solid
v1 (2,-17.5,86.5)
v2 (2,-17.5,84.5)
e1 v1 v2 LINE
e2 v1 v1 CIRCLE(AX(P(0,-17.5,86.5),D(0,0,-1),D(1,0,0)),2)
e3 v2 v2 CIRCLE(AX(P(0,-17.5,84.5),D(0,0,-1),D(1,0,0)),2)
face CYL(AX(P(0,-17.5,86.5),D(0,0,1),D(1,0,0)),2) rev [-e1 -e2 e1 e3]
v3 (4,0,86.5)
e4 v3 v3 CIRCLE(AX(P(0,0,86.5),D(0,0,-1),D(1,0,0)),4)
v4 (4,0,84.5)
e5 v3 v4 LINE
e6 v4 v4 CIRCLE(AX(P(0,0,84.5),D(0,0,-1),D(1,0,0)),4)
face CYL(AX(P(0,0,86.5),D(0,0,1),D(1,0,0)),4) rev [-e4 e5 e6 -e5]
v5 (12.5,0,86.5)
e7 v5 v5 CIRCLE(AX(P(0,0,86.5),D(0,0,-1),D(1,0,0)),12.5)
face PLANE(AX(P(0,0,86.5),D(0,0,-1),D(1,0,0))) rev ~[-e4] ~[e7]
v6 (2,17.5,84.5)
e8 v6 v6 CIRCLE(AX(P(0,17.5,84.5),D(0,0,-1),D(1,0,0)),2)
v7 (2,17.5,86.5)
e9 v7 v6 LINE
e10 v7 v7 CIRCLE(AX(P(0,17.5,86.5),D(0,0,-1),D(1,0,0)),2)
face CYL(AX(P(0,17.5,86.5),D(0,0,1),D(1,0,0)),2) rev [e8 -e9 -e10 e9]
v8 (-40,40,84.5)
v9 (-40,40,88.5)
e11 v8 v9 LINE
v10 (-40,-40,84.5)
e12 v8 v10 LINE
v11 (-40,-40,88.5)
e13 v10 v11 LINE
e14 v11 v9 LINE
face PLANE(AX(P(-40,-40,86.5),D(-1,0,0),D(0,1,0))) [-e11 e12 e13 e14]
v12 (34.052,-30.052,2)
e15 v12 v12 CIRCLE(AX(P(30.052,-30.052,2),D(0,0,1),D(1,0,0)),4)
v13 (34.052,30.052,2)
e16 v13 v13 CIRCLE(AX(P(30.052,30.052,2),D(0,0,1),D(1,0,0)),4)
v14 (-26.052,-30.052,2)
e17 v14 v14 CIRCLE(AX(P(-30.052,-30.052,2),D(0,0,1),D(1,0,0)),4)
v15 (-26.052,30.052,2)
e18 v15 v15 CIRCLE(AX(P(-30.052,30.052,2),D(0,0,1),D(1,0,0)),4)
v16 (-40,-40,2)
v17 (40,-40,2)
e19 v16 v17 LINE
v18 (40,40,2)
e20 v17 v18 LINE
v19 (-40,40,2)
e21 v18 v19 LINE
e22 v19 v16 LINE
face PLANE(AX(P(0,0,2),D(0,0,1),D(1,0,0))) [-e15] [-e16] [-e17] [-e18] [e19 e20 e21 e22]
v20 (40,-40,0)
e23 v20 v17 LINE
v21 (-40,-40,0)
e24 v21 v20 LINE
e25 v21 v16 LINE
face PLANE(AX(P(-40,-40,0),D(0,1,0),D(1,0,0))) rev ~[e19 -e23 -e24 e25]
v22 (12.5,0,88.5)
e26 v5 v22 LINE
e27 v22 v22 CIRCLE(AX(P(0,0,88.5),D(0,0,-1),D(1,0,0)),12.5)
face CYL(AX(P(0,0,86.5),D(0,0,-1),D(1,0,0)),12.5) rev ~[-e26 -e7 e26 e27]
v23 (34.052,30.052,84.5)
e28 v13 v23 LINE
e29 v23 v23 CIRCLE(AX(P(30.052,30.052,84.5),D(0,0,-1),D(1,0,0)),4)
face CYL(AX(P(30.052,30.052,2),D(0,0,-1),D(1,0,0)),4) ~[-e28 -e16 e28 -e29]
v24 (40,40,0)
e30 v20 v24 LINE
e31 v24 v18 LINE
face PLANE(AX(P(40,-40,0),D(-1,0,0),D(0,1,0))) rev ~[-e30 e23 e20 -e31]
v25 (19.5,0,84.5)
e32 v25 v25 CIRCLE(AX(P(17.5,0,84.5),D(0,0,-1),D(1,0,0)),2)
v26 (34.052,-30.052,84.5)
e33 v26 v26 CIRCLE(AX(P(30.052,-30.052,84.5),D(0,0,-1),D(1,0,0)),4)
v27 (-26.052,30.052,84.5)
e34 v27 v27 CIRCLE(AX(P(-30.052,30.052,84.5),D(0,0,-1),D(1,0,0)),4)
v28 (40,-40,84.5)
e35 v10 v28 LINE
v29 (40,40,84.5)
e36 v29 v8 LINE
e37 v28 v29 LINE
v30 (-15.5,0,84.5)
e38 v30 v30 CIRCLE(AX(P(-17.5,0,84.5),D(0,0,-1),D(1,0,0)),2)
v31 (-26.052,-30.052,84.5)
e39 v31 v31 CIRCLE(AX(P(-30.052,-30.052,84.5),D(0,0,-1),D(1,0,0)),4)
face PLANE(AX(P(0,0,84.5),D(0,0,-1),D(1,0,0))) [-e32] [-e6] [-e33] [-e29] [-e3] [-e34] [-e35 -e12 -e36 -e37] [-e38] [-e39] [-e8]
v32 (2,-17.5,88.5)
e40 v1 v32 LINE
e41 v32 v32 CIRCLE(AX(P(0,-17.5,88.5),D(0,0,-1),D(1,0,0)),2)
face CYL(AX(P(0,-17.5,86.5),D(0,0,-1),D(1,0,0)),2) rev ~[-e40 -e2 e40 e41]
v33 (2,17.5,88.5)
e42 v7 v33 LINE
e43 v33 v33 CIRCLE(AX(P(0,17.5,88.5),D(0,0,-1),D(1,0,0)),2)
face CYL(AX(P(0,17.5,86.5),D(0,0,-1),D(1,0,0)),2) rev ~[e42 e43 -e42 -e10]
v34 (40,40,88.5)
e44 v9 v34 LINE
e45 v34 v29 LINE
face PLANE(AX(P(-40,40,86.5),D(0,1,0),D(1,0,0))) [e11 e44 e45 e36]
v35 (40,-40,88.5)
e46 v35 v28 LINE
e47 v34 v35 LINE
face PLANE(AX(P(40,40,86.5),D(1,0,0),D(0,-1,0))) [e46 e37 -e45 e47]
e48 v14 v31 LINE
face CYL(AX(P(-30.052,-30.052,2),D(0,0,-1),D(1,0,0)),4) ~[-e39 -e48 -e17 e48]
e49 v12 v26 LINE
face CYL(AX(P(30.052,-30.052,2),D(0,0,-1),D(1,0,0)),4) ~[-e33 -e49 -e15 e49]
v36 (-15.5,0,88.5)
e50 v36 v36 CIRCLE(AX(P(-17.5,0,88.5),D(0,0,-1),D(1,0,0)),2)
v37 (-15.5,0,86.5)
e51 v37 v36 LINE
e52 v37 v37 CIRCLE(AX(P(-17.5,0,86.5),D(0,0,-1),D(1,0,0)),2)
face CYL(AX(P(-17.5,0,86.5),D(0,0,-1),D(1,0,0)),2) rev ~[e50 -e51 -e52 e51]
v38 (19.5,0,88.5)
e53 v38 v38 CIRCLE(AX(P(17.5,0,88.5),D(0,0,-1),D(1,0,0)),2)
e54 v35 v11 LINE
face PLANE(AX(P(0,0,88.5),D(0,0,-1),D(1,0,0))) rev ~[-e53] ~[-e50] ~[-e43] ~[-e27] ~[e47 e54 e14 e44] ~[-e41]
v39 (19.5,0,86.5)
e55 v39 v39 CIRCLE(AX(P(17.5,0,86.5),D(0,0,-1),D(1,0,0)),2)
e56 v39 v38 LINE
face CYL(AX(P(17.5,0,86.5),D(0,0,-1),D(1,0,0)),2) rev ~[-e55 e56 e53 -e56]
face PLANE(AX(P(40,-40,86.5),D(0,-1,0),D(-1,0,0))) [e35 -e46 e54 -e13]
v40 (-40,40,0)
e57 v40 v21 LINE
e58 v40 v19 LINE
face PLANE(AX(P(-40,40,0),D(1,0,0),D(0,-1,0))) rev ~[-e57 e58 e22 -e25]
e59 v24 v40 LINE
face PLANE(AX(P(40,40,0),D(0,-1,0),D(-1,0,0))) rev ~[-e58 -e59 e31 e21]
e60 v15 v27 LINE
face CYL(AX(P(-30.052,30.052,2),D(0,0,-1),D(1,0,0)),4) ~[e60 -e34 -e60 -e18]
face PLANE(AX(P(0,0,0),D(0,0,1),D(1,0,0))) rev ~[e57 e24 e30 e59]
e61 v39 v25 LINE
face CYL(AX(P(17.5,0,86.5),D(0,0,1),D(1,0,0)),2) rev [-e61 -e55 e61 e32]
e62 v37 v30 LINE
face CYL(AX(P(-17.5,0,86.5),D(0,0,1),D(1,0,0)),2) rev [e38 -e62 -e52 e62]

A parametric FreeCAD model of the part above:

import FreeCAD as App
import Part
import Sketcher

V = App.Vector


def add_polygon(sketch, points):
    """Adds a closed chain of lines whose ends are joined by coincident constraints."""
    first, n = sketch.GeometryCount, len(points)
    for a, b in zip(points, points[1:] + points[:1]):
        sketch.addGeometry(Part.LineSegment(App.Vector(*a, 0), App.Vector(*b, 0)), False)
    for i in range(n):
        sketch.addConstraint(Sketcher.Constraint("Coincident", first + i, 2, first + (i + 1) % n, 1))

doc = App.newDocument("Part")
body = doc.addObject("PartDesign::Body", "Body")

# Sketch on XY plane
sketch1 = doc.addObject("Sketcher::SketchObject", "Sketch")
body.addObject(sketch1)
sketch1.AttachmentSupport = (doc.XY_Plane, [""])
sketch1.MapMode = "FlatFace"
add_polygon(sketch1, [(-40, 40), (-40, -40), (40, -40), (40, 40)])  # lines 0-3
sketch1.addConstraint([
    Sketcher.Constraint("Vertical", 0),
    Sketcher.Constraint("Horizontal", 1),
    Sketcher.Constraint("Vertical", 2),
    Sketcher.Constraint("Horizontal", 3),
    Sketcher.Constraint("Symmetric", 0, 2, 2, 2, -1, 1),
    Sketcher.Constraint("Equal", 3, 0),
    Sketcher.Constraint("DistanceX", 1, 1, 1, 2, 80.0),
])
pad1 = doc.addObject("PartDesign::Pad", "Pad")
body.addObject(pad1)
pad1.Profile = sketch1
pad1.Length = 2

# Sketch on XY plane
sketch2 = doc.addObject("Sketcher::SketchObject", "Sketch001")
body.addObject(sketch2)
sketch2.AttachmentSupport = (doc.XY_Plane, [""])
sketch2.MapMode = "FlatFace"
sketch2.AttachmentOffset = App.Placement(V(0, 0, 2), App.Rotation())
sketch2.addGeometry([
    Part.Circle(V(30.1, 30.1, 0), V(0, 0, 1), 4),
    Part.Circle(V(-30.1, 30.1, 0), V(0, 0, 1), 4),
    Part.Circle(V(-30.1, -30.1, 0), V(0, 0, 1), 4),
    Part.Circle(V(30.1, -30.1, 0), V(0, 0, 1), 4),
], False)
sketch2.addConstraint([
    Sketcher.Constraint("Equal", 0, 1),
    Sketcher.Constraint("Equal", 1, 2),
    Sketcher.Constraint("Equal", 2, 3),
    Sketcher.Constraint("Symmetric", 0, 3, 2, 3, -1, 1),
    Sketcher.Constraint("Symmetric", 1, 3, 3, 3, -1, 1),
    Sketcher.Constraint("Symmetric", 0, 3, 1, 3, -2),
    Sketcher.Constraint("Diameter", 0, 8.0),
    Sketcher.Constraint("DistanceX", -1, 1, 0, 3, 30.052),
    Sketcher.Constraint("DistanceY", -1, 1, 0, 3, 30.052),
])
pad2 = doc.addObject("PartDesign::Pad", "Pad001")
body.addObject(pad2)
pad2.Profile = sketch2
pad2.Length = 84.5

# Sketch on XY plane
sketch3 = doc.addObject("Sketcher::SketchObject", "Sketch002")
body.addObject(sketch3)
sketch3.AttachmentSupport = (doc.XY_Plane, [""])
sketch3.MapMode = "FlatFace"
sketch3.AttachmentOffset = App.Placement(V(0, 0, 86.5), App.Rotation())
add_polygon(sketch3, [(-40, 40), (40, 40), (40, -40), (-40, -40)])  # lines 0-3
sketch3.addGeometry(Part.Circle(V(-30.1, 30.1, 0), V(0, 0, 1), 4), False)  # 4
sketch3.addGeometry(Part.Circle(V(30.1, 30.1, 0), V(0, 0, 1), 4), False)  # 5
sketch3.addGeometry(Part.Circle(V(-30.1, -30.1, 0), V(0, 0, 1), 4), False)  # 6
sketch3.addGeometry(Part.Circle(V(30.1, -30.1, 0), V(0, 0, 1), 4), False)  # 7
sketch3.addGeometry(Part.Circle(V(0, -17.5, 0), V(0, 0, 1), 2), False)  # 8
sketch3.addGeometry(Part.Circle(V(0, 17.5, 0), V(0, 0, 1), 2), False)  # 9
sketch3.addGeometry(Part.Circle(V(-17.5, 0, 0), V(0, 0, 1), 2), False)  # 10
sketch3.addGeometry(Part.Circle(V(17.5, 0, 0), V(0, 0, 1), 2), False)  # 11
sketch3.addGeometry(Part.Circle(V(0, 0, 0), V(0, 0, 1), 4), False)  # 12
sketch3.addConstraint([
    Sketcher.Constraint("Horizontal", 0),
    Sketcher.Constraint("Vertical", 1),
    Sketcher.Constraint("Horizontal", 2),
    Sketcher.Constraint("Vertical", 3),
    Sketcher.Constraint("Coincident", 12, 3, -1, 1),
    Sketcher.Constraint("Equal", 4, 5),
    Sketcher.Constraint("Equal", 5, 6),
    Sketcher.Constraint("Equal", 6, 7),
    Sketcher.Constraint("Equal", 8, 9),
    Sketcher.Constraint("Equal", 9, 10),
    Sketcher.Constraint("Equal", 10, 11),
    Sketcher.Constraint("Equal", 7, 12),
    Sketcher.Constraint("Symmetric", 5, 3, 6, 3, -1, 1),
    Sketcher.Constraint("Symmetric", 4, 3, 7, 3, -1, 1),
    Sketcher.Constraint("Symmetric", 8, 3, 9, 3, -1, 1),
    Sketcher.Constraint("Symmetric", 10, 3, 11, 3, -1, 1),
    Sketcher.Constraint("Symmetric", 0, 2, 2, 2, -1, 1),
    Sketcher.Constraint("Symmetric", 4, 3, 5, 3, -2),
    Sketcher.Constraint("PointOnObject", 8, 3, -2),
    Sketcher.Constraint("PointOnObject", 10, 3, -1),
    Sketcher.Constraint("Equal", 2, 1),
    Sketcher.Constraint("Diameter", 4, 8.0),
    Sketcher.Constraint("Diameter", 8, 4.0),
    Sketcher.Constraint("DistanceX", 0, 1, 0, 2, 80.0),
    Sketcher.Constraint("DistanceY", 8, 3, 9, 3, 35.0),
    Sketcher.Constraint("DistanceX", 10, 3, 11, 3, 35.0),
    Sketcher.Constraint("DistanceX", 4, 3, -1, 1, 30.052),
    Sketcher.Constraint("DistanceY", -1, 1, 4, 3, 30.052),
])
pad3 = doc.addObject("PartDesign::Pad", "Pad002")
body.addObject(pad3)
pad3.Profile = sketch3
pad3.Length = 2
pad3.Reversed = True

# Sketch on XY plane
sketch4 = doc.addObject("Sketcher::SketchObject", "Sketch003")
body.addObject(sketch4)
sketch4.AttachmentSupport = (doc.XY_Plane, [""])
sketch4.MapMode = "FlatFace"
sketch4.AttachmentOffset = App.Placement(V(0, 0, 86.5), App.Rotation())
add_polygon(sketch4, [(-40, 40), (40, 40), (40, -40), (-40, -40)])  # lines 0-3
sketch4.addGeometry(Part.Circle(V(0, 17.5, 0), V(0, 0, 1), 2), False)  # 4
sketch4.addGeometry(Part.Circle(V(-17.5, 0, 0), V(0, 0, 1), 2), False)  # 5
sketch4.addGeometry(Part.Circle(V(0, 0, 0), V(0, 0, 1), 12.5), False)  # 6
sketch4.addGeometry(Part.Circle(V(17.5, 0, 0), V(0, 0, 1), 2), False)  # 7
sketch4.addGeometry(Part.Circle(V(0, -17.5, 0), V(0, 0, 1), 2), False)  # 8
sketch4.addConstraint([
    Sketcher.Constraint("Horizontal", 0),
    Sketcher.Constraint("Vertical", 1),
    Sketcher.Constraint("Horizontal", 2),
    Sketcher.Constraint("Vertical", 3),
    Sketcher.Constraint("Coincident", 6, 3, -1, 1),
    Sketcher.Constraint("Equal", 4, 5),
    Sketcher.Constraint("Equal", 5, 7),
    Sketcher.Constraint("Equal", 7, 8),
    Sketcher.Constraint("Symmetric", 5, 3, 7, 3, -1, 1),
    Sketcher.Constraint("Symmetric", 4, 3, 8, 3, -1, 1),
    Sketcher.Constraint("Symmetric", 0, 2, 2, 2, -1, 1),
    Sketcher.Constraint("PointOnObject", 4, 3, -2),
    Sketcher.Constraint("PointOnObject", 5, 3, -1),
    Sketcher.Constraint("Equal", 2, 1),
    Sketcher.Constraint("Diameter", 4, 4.0),
    Sketcher.Constraint("Diameter", 6, 25.0),
    Sketcher.Constraint("DistanceX", 0, 1, 0, 2, 80.0),
    Sketcher.Constraint("DistanceX", 5, 3, 7, 3, 35.0),
    Sketcher.Constraint("DistanceY", 8, 3, 4, 3, 35.0),
])
pad4 = doc.addObject("PartDesign::Pad", "Pad003")
body.addObject(pad4)
pad4.Profile = sketch4
pad4.Length = 2

doc.recompute()
